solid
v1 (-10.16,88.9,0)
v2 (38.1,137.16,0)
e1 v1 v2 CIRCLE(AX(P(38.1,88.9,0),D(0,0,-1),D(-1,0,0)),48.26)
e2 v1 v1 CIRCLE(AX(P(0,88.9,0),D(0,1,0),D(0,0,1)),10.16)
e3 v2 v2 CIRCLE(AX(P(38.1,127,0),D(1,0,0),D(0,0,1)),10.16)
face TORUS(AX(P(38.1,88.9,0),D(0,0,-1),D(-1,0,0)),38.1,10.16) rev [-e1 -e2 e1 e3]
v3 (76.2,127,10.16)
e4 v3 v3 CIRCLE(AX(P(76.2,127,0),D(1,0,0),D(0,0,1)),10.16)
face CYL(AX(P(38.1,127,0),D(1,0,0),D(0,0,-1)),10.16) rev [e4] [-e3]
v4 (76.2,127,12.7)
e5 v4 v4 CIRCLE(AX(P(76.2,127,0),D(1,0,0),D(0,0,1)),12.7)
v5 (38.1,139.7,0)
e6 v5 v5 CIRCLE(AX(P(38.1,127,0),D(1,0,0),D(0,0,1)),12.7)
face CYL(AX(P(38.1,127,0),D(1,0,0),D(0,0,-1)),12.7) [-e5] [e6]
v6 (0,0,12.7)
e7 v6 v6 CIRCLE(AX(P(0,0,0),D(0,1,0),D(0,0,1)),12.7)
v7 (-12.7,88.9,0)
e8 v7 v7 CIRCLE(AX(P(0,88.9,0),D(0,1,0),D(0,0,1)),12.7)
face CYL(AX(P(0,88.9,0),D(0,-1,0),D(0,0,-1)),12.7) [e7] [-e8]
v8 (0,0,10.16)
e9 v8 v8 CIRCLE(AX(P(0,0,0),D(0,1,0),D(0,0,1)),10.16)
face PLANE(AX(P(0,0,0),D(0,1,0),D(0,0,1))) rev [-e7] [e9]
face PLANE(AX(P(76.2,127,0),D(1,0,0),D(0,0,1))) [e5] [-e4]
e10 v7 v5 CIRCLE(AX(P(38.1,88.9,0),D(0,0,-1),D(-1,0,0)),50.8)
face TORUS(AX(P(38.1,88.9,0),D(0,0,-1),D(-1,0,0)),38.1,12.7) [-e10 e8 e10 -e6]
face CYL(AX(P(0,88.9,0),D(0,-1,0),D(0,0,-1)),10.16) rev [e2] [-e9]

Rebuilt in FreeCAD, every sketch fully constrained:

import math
import FreeCAD as App
import Part
import Sketcher

V = App.Vector
Q = App.Units.Quantity

doc = App.newDocument("Part")
body = doc.addObject("PartDesign::Body", "Body")

# Sketch on XZ plane
sketch1 = body.newObject("Sketcher::SketchObject", "Sketch")
sketch1.AttachmentSupport = (doc.getObject("XZ_Plane"), [""])
sketch1.MapMode = "FlatFace"
sketch1.addGeometry(Part.Circle(V(0, 0, 0), V(0, 0, 1), 12.7), False)
sketch1.addGeometry(Part.Circle(V(0, 0, 0), V(0, 0, 1), 10.16), False)
sketch1.addConstraint(Sketcher.Constraint("Coincident", 0, 3, -1, 1))
sketch1.addConstraint(Sketcher.Constraint("Coincident", 1, 3, -1, 1))
sketch1.addConstraint(Sketcher.Constraint("Diameter", 0, Q("1 in")))
sketch1.addConstraint(Sketcher.Constraint("Diameter", 1, Q("0.8 in")))

# Sketch on XY plane
sketch2 = body.newObject("Sketcher::SketchObject", "Sketch001")
sketch2.AttachmentSupport = (doc.getObject("XY_Plane"), [""])
sketch2.MapMode = "FlatFace"
sketch2.addGeometry(Part.LineSegment(V(0, 0, 0), V(0, 88.9, 0)), False)
sketch2.addGeometry(Part.ArcOfCircle(Part.Circle(V(38.1, 88.9, 0), V(0, 0, 1), 38.1), math.radians(90), math.radians(180)), False)
sketch2.addGeometry(Part.LineSegment(V(38.1, 127, 0), V(76.2, 127, 0)), False)
sketch2.addConstraint(Sketcher.Constraint("Tangent", 0, 2, 1, 2))
sketch2.addConstraint(Sketcher.Constraint("Tangent", 1, 1, 2, 1))
sketch2.addConstraint(Sketcher.Constraint("Vertical", 0))
sketch2.addConstraint(Sketcher.Constraint("Horizontal", 2))
sketch2.addConstraint(Sketcher.Constraint("Coincident", 0, 1, -1, 1))
sketch2.addConstraint(Sketcher.Constraint("Radius", 1, Q("1.5 in")))
sketch2.addConstraint(Sketcher.Constraint("DistanceX", 2, 1, 2, 2, Q("1.5 in")))
sketch2.addConstraint(Sketcher.Constraint("DistanceY", 0, 1, 0, 2, Q("3.5 in")))
doc.recompute()

additivepipe = body.newObject("PartDesign::AdditivePipe", "AdditivePipe")
additivepipe.Profile = sketch1
additivepipe.Spine = (sketch2, ["Edge1", "Edge2", "Edge3"])

doc.recompute()
